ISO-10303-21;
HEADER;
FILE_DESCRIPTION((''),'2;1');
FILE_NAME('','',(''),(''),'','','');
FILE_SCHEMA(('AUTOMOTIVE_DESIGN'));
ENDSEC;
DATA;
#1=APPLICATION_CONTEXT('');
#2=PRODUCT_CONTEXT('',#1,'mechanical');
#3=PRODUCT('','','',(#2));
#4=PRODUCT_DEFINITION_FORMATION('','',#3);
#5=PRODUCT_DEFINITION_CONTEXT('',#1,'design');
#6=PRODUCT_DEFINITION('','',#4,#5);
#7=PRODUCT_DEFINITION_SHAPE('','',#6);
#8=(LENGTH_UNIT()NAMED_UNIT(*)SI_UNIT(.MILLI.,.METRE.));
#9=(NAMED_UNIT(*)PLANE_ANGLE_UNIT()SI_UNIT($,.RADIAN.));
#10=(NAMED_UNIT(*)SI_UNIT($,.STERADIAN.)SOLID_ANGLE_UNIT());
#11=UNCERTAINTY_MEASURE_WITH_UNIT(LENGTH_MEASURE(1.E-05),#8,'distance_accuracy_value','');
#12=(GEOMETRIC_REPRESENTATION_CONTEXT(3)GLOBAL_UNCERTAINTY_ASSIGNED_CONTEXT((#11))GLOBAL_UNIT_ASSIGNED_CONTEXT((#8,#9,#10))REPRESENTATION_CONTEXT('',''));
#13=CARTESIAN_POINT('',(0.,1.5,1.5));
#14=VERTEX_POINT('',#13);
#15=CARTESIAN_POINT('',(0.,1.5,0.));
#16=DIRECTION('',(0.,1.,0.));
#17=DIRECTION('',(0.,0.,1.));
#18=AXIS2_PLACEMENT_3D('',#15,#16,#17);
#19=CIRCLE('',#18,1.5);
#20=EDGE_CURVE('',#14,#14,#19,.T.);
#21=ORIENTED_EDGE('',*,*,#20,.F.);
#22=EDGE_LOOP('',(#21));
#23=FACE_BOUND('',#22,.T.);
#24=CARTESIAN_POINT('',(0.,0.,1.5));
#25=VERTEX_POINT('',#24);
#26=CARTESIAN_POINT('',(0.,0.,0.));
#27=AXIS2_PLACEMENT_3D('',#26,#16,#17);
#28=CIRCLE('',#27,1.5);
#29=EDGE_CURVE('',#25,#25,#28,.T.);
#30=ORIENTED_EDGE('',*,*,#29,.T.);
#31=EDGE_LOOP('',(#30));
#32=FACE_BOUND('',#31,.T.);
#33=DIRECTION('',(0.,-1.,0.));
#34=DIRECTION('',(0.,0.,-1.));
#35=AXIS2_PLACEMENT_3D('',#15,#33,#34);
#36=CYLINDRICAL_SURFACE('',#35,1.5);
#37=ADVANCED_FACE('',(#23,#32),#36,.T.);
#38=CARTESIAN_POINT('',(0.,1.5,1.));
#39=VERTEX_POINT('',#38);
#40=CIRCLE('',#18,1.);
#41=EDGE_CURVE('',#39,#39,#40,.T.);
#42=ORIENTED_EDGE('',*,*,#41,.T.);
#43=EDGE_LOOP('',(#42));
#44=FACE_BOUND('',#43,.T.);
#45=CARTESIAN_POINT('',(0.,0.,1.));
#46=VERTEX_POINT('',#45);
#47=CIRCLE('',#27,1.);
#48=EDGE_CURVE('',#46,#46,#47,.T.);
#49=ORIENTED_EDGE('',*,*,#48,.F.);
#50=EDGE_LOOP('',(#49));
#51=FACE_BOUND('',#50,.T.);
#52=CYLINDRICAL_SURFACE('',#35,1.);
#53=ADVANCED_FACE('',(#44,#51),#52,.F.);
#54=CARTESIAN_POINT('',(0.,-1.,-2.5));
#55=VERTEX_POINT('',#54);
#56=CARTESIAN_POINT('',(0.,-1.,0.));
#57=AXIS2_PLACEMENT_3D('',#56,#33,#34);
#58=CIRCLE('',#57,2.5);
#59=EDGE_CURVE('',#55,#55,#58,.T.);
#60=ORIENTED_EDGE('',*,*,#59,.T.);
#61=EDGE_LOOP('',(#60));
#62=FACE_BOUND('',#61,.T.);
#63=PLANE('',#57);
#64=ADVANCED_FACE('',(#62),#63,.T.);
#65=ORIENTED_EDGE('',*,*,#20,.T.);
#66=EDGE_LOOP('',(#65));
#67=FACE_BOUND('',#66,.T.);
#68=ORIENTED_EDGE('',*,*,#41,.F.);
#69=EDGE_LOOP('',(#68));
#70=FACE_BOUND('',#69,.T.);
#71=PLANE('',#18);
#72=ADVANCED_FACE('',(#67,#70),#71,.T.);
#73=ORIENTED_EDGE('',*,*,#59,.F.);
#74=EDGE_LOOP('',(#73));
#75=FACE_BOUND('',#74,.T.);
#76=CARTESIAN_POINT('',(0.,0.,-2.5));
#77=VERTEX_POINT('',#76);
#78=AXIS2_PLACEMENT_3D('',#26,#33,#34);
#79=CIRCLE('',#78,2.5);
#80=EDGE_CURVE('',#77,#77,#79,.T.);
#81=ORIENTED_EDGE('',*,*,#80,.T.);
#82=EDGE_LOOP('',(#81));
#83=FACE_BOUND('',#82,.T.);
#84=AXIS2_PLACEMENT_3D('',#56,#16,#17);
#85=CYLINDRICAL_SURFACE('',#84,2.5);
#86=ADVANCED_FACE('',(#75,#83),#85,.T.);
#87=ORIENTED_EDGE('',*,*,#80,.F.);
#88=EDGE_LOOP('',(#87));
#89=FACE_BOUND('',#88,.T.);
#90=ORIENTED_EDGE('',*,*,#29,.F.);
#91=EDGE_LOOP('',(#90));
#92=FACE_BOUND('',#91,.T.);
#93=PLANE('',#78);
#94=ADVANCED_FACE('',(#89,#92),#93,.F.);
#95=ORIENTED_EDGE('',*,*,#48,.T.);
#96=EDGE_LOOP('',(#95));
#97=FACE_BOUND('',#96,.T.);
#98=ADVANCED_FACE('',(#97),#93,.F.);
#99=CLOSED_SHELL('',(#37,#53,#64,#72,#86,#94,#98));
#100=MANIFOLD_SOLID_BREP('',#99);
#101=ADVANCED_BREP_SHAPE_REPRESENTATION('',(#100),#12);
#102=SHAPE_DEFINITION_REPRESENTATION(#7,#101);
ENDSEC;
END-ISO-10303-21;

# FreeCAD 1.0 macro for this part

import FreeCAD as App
import Part
import Sketcher
from FreeCAD import Vector
Q = App.Units.Quantity

doc = App.newDocument("Part")
body = doc.addObject("PartDesign::Body", "Body")

# Sketch on XZ plane
sketch1 = body.newObject("Sketcher::SketchObject", "Sketch")
sketch1.AttachmentSupport = (doc.getObject("XZ_Plane"), [""])
sketch1.MapMode = "FlatFace"
sketch1.addGeometry([
    Part.Circle(Vector(0, 0, 0), Vector(0, 0, 1), 1.5),
    Part.Circle(Vector(0, 0, 0), Vector(0, 0, 1), 1),
], False)
sketch1.addConstraint([
    Sketcher.Constraint("Coincident", 0, 3, -1, 1),
    Sketcher.Constraint("Coincident", 1, 3, -1, 1),
    Sketcher.Constraint("Diameter", 0, Q("3 mm")),
    Sketcher.Constraint("Diameter", 1, Q("2 mm")),
])
pad1 = body.newObject("PartDesign::Pad", "Pad")
pad1.Profile = sketch1
pad1.Length = 1.5
pad1.Reversed = True

# Sketch on XZ plane
sketch2 = body.newObject("Sketcher::SketchObject", "Sketch001")
sketch2.AttachmentSupport = (doc.getObject("XZ_Plane"), [""])
sketch2.MapMode = "FlatFace"
sketch2.addGeometry(Part.Circle(Vector(0, 0, 0), Vector(0, 0, 1), 2.5), False)
sketch2.addConstraint([
    Sketcher.Constraint("Coincident", 0, 3, -1, 1),
    Sketcher.Constraint("Diameter", 0, Q("5 mm")),
])
pad2 = body.newObject("PartDesign::Pad", "Pad001")
pad2.Profile = sketch2
pad2.Length = 1

doc.recompute()
